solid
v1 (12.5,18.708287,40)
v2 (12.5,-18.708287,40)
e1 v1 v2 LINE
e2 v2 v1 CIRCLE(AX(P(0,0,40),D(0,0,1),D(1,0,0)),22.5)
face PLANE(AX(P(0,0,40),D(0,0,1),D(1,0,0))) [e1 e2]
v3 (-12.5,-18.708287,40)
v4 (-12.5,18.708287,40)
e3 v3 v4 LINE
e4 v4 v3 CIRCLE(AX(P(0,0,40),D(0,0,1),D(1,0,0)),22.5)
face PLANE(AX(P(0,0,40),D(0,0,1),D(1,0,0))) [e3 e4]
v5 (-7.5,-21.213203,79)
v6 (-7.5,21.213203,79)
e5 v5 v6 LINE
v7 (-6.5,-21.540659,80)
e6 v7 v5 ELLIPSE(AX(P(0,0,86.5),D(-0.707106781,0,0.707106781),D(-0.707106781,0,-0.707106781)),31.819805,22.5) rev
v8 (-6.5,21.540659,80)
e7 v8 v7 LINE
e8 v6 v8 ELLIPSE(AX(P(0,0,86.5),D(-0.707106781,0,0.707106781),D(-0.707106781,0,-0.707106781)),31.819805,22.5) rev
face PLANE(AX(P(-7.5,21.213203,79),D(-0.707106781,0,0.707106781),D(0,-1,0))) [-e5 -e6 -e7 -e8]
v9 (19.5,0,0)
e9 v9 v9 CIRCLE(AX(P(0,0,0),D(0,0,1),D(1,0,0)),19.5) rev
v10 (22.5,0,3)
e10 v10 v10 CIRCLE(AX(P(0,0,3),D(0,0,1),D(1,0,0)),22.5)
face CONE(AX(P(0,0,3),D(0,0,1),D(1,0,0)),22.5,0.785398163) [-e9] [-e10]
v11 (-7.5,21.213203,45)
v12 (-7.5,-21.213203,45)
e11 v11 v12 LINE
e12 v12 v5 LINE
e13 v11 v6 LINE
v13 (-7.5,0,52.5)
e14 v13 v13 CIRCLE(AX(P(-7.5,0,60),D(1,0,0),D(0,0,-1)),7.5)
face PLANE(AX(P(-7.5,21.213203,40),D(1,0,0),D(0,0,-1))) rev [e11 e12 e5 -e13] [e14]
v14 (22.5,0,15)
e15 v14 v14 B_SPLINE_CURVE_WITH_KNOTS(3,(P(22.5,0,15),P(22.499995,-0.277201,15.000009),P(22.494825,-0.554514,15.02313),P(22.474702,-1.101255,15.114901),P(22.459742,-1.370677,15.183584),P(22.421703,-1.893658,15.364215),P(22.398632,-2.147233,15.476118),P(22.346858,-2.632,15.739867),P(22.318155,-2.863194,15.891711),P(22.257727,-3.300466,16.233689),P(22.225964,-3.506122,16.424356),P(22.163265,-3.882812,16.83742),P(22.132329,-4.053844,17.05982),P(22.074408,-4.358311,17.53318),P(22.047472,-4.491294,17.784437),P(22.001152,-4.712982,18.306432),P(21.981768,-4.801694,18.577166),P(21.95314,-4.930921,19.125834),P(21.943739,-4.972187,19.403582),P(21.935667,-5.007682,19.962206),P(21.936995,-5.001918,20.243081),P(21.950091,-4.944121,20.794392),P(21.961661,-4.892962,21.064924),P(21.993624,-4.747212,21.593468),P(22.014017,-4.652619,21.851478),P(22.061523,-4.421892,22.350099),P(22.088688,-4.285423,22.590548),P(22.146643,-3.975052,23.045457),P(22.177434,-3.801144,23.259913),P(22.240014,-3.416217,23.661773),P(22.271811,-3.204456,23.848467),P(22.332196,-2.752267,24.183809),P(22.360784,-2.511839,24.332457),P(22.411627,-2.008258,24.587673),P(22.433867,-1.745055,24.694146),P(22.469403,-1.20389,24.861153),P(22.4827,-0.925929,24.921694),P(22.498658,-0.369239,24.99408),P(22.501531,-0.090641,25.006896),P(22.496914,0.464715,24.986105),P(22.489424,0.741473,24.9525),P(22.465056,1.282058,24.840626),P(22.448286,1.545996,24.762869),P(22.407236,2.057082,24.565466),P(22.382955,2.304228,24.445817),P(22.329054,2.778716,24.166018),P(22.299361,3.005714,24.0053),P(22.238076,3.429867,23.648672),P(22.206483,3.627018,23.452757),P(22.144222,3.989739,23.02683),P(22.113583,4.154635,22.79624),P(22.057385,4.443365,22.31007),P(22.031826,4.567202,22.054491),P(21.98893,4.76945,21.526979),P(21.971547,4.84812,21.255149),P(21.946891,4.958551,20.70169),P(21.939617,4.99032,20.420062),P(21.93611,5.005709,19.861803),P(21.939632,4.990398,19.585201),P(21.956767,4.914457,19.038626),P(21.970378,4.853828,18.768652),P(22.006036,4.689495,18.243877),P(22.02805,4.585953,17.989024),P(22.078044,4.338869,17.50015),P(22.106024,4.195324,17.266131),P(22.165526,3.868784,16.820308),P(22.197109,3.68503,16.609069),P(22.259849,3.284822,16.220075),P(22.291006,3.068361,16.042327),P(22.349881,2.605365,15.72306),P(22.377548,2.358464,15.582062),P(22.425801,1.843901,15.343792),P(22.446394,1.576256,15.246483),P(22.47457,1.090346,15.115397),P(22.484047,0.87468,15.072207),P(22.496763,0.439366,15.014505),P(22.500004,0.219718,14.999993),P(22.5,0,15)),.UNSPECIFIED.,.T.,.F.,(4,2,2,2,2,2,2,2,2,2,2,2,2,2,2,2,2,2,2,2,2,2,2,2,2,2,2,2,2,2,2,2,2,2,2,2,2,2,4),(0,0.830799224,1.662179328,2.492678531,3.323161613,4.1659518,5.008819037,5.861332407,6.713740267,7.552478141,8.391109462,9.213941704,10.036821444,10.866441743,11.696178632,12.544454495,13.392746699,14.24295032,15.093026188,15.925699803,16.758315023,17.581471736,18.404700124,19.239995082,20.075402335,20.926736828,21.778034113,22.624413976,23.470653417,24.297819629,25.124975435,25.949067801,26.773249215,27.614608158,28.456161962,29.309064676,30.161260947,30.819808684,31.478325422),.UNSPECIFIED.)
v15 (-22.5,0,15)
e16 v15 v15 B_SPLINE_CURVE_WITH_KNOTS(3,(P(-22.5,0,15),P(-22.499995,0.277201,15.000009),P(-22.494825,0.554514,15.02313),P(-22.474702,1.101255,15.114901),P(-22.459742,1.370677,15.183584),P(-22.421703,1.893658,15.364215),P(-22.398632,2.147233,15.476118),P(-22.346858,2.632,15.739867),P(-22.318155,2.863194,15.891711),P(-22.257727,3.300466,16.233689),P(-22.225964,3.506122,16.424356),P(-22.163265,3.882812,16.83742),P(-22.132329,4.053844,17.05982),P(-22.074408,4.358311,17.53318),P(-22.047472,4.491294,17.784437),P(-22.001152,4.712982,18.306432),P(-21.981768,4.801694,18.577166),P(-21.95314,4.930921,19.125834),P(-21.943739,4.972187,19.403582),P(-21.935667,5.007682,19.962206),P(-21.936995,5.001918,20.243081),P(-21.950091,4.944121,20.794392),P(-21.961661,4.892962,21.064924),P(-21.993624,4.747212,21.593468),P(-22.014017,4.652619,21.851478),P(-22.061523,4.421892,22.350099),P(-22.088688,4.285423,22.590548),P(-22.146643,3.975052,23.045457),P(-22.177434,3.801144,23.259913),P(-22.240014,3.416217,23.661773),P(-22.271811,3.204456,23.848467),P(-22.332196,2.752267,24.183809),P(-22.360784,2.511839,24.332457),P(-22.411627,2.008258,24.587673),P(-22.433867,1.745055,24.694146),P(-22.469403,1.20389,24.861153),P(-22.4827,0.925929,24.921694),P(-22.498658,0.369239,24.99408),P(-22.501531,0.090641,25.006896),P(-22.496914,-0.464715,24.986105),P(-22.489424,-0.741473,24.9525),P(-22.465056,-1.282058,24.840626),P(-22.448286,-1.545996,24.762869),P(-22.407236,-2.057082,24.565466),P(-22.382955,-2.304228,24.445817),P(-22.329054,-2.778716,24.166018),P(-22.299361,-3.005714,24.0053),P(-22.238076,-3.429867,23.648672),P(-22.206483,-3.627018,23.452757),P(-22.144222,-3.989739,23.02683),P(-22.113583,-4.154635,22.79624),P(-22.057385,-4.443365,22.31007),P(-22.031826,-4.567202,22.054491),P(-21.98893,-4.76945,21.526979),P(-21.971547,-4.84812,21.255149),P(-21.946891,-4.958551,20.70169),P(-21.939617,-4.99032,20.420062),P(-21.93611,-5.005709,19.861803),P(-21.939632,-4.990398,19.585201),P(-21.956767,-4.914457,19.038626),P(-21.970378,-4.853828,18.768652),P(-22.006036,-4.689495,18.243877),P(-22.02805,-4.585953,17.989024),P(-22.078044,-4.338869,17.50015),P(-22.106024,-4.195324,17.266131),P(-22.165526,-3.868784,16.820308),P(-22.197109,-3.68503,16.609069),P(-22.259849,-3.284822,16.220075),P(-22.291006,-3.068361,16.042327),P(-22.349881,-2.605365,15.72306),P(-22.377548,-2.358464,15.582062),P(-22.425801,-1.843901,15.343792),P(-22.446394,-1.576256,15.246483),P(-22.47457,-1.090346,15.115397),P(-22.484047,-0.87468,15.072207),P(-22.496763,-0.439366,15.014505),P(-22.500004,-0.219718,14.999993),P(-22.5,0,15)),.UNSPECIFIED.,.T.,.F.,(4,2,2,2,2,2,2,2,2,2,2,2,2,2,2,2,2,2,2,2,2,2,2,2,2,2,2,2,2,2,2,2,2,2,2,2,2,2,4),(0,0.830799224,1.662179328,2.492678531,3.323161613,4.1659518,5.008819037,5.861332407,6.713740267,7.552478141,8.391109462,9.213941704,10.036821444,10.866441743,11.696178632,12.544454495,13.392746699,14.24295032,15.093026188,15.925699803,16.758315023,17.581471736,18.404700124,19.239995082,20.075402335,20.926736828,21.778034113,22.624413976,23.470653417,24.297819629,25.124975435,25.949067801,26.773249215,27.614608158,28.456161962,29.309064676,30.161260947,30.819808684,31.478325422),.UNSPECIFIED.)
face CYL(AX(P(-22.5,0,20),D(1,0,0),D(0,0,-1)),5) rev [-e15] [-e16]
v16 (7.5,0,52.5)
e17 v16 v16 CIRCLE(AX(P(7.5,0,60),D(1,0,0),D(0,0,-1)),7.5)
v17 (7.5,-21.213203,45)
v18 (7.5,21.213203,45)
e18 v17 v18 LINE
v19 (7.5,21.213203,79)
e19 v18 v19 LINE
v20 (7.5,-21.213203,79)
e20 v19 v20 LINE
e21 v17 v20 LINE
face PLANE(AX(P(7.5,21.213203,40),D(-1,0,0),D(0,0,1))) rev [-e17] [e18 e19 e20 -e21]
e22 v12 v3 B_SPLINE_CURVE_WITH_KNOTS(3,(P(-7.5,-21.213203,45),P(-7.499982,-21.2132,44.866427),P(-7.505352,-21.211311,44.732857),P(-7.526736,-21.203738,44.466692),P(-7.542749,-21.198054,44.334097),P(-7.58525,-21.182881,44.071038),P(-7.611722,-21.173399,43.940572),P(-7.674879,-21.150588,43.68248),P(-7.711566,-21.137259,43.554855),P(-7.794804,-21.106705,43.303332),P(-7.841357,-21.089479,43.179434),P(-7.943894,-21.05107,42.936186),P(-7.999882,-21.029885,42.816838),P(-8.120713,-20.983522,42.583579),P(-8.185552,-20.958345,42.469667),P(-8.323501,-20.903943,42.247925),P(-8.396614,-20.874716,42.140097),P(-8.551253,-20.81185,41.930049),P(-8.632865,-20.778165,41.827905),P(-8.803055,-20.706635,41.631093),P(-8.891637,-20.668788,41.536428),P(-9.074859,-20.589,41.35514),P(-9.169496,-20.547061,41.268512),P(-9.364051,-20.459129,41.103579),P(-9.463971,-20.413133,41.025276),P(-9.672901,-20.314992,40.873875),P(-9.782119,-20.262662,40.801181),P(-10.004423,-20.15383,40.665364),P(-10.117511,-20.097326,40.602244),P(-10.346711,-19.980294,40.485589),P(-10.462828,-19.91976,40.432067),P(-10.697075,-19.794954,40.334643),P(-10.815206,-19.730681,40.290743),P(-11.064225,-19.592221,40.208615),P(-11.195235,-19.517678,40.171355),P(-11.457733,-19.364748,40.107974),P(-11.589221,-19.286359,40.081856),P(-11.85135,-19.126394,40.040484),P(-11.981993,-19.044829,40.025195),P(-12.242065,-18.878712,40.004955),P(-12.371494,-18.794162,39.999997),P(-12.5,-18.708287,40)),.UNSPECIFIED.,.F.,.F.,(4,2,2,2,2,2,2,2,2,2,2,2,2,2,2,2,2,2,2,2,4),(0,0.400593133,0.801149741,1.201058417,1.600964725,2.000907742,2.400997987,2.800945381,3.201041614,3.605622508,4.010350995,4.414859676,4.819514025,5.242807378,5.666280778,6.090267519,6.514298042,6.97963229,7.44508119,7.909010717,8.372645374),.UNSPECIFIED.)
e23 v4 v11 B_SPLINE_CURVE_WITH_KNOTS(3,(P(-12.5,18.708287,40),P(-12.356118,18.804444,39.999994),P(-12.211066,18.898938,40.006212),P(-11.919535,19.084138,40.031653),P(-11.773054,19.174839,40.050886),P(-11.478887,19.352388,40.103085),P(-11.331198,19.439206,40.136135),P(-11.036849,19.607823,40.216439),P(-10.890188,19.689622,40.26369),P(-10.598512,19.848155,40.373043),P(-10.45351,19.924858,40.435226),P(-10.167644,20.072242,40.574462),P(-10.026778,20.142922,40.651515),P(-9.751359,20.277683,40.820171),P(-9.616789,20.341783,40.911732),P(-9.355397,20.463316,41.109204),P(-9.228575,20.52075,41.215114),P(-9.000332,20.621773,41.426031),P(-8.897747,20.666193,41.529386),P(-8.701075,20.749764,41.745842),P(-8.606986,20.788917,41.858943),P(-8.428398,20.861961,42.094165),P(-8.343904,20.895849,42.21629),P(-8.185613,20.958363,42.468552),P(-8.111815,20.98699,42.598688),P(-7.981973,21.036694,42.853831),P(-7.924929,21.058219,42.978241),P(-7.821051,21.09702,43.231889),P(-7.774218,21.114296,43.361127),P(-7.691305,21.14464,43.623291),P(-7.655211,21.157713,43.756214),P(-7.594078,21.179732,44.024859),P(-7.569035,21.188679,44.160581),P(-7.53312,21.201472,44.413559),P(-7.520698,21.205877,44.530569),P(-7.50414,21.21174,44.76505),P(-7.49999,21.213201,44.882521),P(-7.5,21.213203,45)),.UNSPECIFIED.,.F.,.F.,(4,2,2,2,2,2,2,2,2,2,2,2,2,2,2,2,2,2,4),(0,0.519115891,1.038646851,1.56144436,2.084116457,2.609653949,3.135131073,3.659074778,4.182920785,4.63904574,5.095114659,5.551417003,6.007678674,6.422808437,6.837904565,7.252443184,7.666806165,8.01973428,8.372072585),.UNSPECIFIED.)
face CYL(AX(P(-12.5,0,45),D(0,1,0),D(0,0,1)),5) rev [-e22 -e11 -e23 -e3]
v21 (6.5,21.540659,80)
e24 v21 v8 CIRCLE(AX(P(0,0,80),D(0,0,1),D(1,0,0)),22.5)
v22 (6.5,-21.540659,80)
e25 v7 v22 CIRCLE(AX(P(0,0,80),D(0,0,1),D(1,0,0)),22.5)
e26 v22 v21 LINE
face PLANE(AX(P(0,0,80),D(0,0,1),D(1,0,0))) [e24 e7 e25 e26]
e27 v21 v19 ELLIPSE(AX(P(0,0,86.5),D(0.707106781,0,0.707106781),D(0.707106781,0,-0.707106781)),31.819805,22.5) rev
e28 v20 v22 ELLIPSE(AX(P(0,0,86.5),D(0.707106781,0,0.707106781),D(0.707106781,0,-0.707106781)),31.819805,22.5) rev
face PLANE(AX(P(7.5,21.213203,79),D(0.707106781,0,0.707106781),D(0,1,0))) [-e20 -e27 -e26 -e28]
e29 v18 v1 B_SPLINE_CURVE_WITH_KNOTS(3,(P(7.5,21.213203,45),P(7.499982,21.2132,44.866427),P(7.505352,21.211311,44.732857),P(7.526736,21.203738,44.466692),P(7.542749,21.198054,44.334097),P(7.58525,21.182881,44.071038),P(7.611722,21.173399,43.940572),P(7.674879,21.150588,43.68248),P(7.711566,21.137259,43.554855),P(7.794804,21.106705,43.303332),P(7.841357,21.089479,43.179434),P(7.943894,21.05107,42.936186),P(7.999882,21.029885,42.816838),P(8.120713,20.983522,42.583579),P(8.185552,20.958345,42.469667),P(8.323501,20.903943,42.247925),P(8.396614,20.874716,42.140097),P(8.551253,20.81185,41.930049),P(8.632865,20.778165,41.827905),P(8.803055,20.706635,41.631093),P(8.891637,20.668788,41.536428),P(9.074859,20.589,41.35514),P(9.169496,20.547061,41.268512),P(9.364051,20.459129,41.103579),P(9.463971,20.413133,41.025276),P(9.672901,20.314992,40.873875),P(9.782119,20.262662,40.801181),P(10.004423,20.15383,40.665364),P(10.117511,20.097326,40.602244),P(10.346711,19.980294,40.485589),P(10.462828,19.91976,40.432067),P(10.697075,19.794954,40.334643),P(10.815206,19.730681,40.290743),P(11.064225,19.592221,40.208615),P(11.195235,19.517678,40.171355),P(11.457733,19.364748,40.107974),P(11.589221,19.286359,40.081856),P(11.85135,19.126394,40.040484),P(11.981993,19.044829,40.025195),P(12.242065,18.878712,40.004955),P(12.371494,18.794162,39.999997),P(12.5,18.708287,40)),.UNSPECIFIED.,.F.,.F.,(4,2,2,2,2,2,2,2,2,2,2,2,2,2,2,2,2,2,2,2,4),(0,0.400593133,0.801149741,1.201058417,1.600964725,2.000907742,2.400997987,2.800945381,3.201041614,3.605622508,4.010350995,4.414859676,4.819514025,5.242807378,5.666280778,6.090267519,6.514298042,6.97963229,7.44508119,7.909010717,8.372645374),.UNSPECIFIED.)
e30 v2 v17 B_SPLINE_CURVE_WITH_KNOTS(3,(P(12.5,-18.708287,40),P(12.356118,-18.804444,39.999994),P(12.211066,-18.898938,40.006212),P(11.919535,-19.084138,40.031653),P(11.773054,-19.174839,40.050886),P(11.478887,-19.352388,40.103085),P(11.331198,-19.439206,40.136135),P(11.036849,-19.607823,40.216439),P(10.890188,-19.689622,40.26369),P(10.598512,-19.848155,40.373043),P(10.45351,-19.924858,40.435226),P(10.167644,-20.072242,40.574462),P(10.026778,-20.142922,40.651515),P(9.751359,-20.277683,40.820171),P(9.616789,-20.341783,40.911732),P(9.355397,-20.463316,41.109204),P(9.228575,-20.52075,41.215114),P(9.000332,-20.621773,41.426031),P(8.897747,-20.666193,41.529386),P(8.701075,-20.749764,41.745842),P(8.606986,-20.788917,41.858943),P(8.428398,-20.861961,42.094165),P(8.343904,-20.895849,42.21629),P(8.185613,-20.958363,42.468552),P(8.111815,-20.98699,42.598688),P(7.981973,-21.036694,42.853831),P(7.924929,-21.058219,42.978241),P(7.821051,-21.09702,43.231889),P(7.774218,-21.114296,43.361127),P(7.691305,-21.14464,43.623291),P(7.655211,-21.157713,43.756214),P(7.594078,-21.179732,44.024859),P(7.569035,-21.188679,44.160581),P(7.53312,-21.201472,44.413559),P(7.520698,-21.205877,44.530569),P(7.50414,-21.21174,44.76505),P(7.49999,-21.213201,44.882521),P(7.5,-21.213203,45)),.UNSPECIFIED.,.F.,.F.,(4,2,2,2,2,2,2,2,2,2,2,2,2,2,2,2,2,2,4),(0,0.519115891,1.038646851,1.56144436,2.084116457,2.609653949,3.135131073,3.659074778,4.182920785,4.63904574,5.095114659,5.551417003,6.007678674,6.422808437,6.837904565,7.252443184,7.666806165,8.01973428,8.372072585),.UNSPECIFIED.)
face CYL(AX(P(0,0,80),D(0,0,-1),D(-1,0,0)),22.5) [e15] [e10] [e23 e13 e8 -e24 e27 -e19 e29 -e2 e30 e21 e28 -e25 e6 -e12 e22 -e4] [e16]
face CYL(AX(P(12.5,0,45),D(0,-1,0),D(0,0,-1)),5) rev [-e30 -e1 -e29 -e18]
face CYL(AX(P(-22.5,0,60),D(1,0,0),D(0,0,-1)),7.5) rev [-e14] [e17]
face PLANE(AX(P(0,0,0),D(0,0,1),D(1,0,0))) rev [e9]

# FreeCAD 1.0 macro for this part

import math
import FreeCAD as App
import Part
import Sketcher
Q = App.Units.Quantity


def edges_at(feature, points):
    """Names of the edges that pass closest to the given points."""
    edges = feature.Shape.Edges
    near = lambda p: min(range(len(edges)), key=lambda i: edges[i].distToShape(Part.Vertex(*p))[0])
    return sorted({f"Edge{near(p) + 1}" for p in points})

doc = App.newDocument("Part")
body = doc.addObject("PartDesign::Body", "Body")

# Sketch on XY plane
sketch1 = doc.addObject("Sketcher::SketchObject", "Sketch")
body.addObject(sketch1)
sketch1.AttachmentSupport = (doc.XY_Plane, [""])
sketch1.MapMode = "FlatFace"
sketch1.addGeometry(Part.Circle(App.Vector(0, 0, 0), App.Vector(0, 0, 1), 22), False)
sketch1.addConstraint([
    Sketcher.Constraint("Coincident", 0, 3, -1, 1),
    Sketcher.Constraint("Diameter", 0, Q("45 mm")),
])
pad1 = doc.addObject("PartDesign::Pad", "Pad")
body.addObject(pad1)
pad1.Profile = sketch1
pad1.Length = 80

# Sketch on XY plane
sketch2 = doc.addObject("Sketcher::SketchObject", "Sketch001")
body.addObject(sketch2)
sketch2.AttachmentSupport = (doc.XY_Plane, [""])
sketch2.MapMode = "FlatFace"
sketch2.AttachmentOffset = App.Placement(App.Vector(0, 0, 40), App.Rotation())
sketch2.addGeometry([
    Part.LineSegment(App.Vector(8, 21, 0), App.Vector(8, -21, 0)),
    Part.ArcOfCircle(Part.Circle(App.Vector(0, 0, 0), App.Vector(0, 0, 1), 23), math.radians(-71), math.radians(71)),
    Part.LineSegment(App.Vector(-8, -21, 0), App.Vector(-8, 21, 0)),
    Part.ArcOfCircle(Part.Circle(App.Vector(0, 0, 0), App.Vector(0, 0, 1), 23), math.radians(109), math.radians(251)),
], False)
sketch2.addConstraint([
    Sketcher.Constraint("Coincident", 0, 1, 1, 2),
    Sketcher.Constraint("Coincident", 1, 1, 0, 2),
    Sketcher.Constraint("Coincident", 2, 1, 3, 2),
    Sketcher.Constraint("Coincident", 3, 1, 2, 2),
    Sketcher.Constraint("Vertical", 0),
    Sketcher.Constraint("Vertical", 2),
    Sketcher.Constraint("Coincident", 1, 3, -1, 1),
    Sketcher.Constraint("Coincident", 3, 3, -1, 1),
    Sketcher.Constraint("Equal", 1, 3),
    Sketcher.Constraint("Horizontal", 1, 1, 2, 1),
    Sketcher.Constraint("Radius", 1, Q("22.5 mm")),
    Sketcher.Constraint("DistanceX", 2, 1, 1, 1, Q("15 mm")),
])
pocket1 = doc.addObject("PartDesign::Pocket", "Pocket")
body.addObject(pocket1)
pocket1.Profile = sketch2
pocket1.Length = 40
pocket1.Reversed = True
doc.recompute()

fillet = doc.addObject("PartDesign::Fillet", "Fillet")
body.addObject(fillet)
fillet.Base = (pocket1, edges_at(pocket1, [(-7.5, 0, 40), (7.5, 0, 40)]))
fillet.Radius = 5

# Sketch on YZ plane
sketch3 = doc.addObject("Sketcher::SketchObject", "Sketch002")
body.addObject(sketch3)
sketch3.AttachmentSupport = (doc.YZ_Plane, [""])
sketch3.MapMode = "FlatFace"
sketch3.AttachmentOffset = App.Placement(App.Vector(0, 0, 7.5), App.Rotation())
sketch3.addGeometry(Part.Circle(App.Vector(0, 60, 0), App.Vector(0, 0, 1), 8), False)
sketch3.addConstraint([
    Sketcher.Constraint("PointOnObject", 0, 3, -2),
    Sketcher.Constraint("Diameter", 0, Q("15 mm")),
    Sketcher.Constraint("DistanceY", -1, 1, 0, 3, Q("60 mm")),
])
pocket2 = doc.addObject("PartDesign::Pocket", "Pocket001")
body.addObject(pocket2)
pocket2.Profile = sketch3
pocket2.Type = "ThroughAll"
doc.recompute()

chamfer = doc.addObject("PartDesign::Chamfer", "Chamfer")
body.addObject(chamfer)
chamfer.Base = (pocket2, edges_at(pocket2, [(-7.5, 0, 80), (7.5, 0, 80)]))
chamfer.Size = 1
doc.recompute()

chamfer2 = doc.addObject("PartDesign::Chamfer", "Chamfer001")
body.addObject(chamfer2)
chamfer2.Base = (chamfer, edges_at(chamfer, [(-22.5, 0, 0)]))
chamfer2.Size = 3

# Sketch on YZ plane
sketch4 = doc.addObject("Sketcher::SketchObject", "Sketch003")
body.addObject(sketch4)
sketch4.AttachmentSupport = (doc.YZ_Plane, [""])
sketch4.MapMode = "FlatFace"
sketch4.addGeometry(Part.Circle(App.Vector(0, 20, 0), App.Vector(0, 0, 1), 5), False)
sketch4.addConstraint([
    Sketcher.Constraint("PointOnObject", 0, 3, -2),
    Sketcher.Constraint("Diameter", 0, Q("10 mm")),
    Sketcher.Constraint("DistanceY", -1, 1, 0, 3, Q("20 mm")),
])
pocket3 = doc.addObject("PartDesign::Pocket", "Pocket002")
body.addObject(pocket3)
pocket3.Profile = sketch4
pocket3.Type = "ThroughAll"
pocket3.Midplane = True

doc.recompute()
